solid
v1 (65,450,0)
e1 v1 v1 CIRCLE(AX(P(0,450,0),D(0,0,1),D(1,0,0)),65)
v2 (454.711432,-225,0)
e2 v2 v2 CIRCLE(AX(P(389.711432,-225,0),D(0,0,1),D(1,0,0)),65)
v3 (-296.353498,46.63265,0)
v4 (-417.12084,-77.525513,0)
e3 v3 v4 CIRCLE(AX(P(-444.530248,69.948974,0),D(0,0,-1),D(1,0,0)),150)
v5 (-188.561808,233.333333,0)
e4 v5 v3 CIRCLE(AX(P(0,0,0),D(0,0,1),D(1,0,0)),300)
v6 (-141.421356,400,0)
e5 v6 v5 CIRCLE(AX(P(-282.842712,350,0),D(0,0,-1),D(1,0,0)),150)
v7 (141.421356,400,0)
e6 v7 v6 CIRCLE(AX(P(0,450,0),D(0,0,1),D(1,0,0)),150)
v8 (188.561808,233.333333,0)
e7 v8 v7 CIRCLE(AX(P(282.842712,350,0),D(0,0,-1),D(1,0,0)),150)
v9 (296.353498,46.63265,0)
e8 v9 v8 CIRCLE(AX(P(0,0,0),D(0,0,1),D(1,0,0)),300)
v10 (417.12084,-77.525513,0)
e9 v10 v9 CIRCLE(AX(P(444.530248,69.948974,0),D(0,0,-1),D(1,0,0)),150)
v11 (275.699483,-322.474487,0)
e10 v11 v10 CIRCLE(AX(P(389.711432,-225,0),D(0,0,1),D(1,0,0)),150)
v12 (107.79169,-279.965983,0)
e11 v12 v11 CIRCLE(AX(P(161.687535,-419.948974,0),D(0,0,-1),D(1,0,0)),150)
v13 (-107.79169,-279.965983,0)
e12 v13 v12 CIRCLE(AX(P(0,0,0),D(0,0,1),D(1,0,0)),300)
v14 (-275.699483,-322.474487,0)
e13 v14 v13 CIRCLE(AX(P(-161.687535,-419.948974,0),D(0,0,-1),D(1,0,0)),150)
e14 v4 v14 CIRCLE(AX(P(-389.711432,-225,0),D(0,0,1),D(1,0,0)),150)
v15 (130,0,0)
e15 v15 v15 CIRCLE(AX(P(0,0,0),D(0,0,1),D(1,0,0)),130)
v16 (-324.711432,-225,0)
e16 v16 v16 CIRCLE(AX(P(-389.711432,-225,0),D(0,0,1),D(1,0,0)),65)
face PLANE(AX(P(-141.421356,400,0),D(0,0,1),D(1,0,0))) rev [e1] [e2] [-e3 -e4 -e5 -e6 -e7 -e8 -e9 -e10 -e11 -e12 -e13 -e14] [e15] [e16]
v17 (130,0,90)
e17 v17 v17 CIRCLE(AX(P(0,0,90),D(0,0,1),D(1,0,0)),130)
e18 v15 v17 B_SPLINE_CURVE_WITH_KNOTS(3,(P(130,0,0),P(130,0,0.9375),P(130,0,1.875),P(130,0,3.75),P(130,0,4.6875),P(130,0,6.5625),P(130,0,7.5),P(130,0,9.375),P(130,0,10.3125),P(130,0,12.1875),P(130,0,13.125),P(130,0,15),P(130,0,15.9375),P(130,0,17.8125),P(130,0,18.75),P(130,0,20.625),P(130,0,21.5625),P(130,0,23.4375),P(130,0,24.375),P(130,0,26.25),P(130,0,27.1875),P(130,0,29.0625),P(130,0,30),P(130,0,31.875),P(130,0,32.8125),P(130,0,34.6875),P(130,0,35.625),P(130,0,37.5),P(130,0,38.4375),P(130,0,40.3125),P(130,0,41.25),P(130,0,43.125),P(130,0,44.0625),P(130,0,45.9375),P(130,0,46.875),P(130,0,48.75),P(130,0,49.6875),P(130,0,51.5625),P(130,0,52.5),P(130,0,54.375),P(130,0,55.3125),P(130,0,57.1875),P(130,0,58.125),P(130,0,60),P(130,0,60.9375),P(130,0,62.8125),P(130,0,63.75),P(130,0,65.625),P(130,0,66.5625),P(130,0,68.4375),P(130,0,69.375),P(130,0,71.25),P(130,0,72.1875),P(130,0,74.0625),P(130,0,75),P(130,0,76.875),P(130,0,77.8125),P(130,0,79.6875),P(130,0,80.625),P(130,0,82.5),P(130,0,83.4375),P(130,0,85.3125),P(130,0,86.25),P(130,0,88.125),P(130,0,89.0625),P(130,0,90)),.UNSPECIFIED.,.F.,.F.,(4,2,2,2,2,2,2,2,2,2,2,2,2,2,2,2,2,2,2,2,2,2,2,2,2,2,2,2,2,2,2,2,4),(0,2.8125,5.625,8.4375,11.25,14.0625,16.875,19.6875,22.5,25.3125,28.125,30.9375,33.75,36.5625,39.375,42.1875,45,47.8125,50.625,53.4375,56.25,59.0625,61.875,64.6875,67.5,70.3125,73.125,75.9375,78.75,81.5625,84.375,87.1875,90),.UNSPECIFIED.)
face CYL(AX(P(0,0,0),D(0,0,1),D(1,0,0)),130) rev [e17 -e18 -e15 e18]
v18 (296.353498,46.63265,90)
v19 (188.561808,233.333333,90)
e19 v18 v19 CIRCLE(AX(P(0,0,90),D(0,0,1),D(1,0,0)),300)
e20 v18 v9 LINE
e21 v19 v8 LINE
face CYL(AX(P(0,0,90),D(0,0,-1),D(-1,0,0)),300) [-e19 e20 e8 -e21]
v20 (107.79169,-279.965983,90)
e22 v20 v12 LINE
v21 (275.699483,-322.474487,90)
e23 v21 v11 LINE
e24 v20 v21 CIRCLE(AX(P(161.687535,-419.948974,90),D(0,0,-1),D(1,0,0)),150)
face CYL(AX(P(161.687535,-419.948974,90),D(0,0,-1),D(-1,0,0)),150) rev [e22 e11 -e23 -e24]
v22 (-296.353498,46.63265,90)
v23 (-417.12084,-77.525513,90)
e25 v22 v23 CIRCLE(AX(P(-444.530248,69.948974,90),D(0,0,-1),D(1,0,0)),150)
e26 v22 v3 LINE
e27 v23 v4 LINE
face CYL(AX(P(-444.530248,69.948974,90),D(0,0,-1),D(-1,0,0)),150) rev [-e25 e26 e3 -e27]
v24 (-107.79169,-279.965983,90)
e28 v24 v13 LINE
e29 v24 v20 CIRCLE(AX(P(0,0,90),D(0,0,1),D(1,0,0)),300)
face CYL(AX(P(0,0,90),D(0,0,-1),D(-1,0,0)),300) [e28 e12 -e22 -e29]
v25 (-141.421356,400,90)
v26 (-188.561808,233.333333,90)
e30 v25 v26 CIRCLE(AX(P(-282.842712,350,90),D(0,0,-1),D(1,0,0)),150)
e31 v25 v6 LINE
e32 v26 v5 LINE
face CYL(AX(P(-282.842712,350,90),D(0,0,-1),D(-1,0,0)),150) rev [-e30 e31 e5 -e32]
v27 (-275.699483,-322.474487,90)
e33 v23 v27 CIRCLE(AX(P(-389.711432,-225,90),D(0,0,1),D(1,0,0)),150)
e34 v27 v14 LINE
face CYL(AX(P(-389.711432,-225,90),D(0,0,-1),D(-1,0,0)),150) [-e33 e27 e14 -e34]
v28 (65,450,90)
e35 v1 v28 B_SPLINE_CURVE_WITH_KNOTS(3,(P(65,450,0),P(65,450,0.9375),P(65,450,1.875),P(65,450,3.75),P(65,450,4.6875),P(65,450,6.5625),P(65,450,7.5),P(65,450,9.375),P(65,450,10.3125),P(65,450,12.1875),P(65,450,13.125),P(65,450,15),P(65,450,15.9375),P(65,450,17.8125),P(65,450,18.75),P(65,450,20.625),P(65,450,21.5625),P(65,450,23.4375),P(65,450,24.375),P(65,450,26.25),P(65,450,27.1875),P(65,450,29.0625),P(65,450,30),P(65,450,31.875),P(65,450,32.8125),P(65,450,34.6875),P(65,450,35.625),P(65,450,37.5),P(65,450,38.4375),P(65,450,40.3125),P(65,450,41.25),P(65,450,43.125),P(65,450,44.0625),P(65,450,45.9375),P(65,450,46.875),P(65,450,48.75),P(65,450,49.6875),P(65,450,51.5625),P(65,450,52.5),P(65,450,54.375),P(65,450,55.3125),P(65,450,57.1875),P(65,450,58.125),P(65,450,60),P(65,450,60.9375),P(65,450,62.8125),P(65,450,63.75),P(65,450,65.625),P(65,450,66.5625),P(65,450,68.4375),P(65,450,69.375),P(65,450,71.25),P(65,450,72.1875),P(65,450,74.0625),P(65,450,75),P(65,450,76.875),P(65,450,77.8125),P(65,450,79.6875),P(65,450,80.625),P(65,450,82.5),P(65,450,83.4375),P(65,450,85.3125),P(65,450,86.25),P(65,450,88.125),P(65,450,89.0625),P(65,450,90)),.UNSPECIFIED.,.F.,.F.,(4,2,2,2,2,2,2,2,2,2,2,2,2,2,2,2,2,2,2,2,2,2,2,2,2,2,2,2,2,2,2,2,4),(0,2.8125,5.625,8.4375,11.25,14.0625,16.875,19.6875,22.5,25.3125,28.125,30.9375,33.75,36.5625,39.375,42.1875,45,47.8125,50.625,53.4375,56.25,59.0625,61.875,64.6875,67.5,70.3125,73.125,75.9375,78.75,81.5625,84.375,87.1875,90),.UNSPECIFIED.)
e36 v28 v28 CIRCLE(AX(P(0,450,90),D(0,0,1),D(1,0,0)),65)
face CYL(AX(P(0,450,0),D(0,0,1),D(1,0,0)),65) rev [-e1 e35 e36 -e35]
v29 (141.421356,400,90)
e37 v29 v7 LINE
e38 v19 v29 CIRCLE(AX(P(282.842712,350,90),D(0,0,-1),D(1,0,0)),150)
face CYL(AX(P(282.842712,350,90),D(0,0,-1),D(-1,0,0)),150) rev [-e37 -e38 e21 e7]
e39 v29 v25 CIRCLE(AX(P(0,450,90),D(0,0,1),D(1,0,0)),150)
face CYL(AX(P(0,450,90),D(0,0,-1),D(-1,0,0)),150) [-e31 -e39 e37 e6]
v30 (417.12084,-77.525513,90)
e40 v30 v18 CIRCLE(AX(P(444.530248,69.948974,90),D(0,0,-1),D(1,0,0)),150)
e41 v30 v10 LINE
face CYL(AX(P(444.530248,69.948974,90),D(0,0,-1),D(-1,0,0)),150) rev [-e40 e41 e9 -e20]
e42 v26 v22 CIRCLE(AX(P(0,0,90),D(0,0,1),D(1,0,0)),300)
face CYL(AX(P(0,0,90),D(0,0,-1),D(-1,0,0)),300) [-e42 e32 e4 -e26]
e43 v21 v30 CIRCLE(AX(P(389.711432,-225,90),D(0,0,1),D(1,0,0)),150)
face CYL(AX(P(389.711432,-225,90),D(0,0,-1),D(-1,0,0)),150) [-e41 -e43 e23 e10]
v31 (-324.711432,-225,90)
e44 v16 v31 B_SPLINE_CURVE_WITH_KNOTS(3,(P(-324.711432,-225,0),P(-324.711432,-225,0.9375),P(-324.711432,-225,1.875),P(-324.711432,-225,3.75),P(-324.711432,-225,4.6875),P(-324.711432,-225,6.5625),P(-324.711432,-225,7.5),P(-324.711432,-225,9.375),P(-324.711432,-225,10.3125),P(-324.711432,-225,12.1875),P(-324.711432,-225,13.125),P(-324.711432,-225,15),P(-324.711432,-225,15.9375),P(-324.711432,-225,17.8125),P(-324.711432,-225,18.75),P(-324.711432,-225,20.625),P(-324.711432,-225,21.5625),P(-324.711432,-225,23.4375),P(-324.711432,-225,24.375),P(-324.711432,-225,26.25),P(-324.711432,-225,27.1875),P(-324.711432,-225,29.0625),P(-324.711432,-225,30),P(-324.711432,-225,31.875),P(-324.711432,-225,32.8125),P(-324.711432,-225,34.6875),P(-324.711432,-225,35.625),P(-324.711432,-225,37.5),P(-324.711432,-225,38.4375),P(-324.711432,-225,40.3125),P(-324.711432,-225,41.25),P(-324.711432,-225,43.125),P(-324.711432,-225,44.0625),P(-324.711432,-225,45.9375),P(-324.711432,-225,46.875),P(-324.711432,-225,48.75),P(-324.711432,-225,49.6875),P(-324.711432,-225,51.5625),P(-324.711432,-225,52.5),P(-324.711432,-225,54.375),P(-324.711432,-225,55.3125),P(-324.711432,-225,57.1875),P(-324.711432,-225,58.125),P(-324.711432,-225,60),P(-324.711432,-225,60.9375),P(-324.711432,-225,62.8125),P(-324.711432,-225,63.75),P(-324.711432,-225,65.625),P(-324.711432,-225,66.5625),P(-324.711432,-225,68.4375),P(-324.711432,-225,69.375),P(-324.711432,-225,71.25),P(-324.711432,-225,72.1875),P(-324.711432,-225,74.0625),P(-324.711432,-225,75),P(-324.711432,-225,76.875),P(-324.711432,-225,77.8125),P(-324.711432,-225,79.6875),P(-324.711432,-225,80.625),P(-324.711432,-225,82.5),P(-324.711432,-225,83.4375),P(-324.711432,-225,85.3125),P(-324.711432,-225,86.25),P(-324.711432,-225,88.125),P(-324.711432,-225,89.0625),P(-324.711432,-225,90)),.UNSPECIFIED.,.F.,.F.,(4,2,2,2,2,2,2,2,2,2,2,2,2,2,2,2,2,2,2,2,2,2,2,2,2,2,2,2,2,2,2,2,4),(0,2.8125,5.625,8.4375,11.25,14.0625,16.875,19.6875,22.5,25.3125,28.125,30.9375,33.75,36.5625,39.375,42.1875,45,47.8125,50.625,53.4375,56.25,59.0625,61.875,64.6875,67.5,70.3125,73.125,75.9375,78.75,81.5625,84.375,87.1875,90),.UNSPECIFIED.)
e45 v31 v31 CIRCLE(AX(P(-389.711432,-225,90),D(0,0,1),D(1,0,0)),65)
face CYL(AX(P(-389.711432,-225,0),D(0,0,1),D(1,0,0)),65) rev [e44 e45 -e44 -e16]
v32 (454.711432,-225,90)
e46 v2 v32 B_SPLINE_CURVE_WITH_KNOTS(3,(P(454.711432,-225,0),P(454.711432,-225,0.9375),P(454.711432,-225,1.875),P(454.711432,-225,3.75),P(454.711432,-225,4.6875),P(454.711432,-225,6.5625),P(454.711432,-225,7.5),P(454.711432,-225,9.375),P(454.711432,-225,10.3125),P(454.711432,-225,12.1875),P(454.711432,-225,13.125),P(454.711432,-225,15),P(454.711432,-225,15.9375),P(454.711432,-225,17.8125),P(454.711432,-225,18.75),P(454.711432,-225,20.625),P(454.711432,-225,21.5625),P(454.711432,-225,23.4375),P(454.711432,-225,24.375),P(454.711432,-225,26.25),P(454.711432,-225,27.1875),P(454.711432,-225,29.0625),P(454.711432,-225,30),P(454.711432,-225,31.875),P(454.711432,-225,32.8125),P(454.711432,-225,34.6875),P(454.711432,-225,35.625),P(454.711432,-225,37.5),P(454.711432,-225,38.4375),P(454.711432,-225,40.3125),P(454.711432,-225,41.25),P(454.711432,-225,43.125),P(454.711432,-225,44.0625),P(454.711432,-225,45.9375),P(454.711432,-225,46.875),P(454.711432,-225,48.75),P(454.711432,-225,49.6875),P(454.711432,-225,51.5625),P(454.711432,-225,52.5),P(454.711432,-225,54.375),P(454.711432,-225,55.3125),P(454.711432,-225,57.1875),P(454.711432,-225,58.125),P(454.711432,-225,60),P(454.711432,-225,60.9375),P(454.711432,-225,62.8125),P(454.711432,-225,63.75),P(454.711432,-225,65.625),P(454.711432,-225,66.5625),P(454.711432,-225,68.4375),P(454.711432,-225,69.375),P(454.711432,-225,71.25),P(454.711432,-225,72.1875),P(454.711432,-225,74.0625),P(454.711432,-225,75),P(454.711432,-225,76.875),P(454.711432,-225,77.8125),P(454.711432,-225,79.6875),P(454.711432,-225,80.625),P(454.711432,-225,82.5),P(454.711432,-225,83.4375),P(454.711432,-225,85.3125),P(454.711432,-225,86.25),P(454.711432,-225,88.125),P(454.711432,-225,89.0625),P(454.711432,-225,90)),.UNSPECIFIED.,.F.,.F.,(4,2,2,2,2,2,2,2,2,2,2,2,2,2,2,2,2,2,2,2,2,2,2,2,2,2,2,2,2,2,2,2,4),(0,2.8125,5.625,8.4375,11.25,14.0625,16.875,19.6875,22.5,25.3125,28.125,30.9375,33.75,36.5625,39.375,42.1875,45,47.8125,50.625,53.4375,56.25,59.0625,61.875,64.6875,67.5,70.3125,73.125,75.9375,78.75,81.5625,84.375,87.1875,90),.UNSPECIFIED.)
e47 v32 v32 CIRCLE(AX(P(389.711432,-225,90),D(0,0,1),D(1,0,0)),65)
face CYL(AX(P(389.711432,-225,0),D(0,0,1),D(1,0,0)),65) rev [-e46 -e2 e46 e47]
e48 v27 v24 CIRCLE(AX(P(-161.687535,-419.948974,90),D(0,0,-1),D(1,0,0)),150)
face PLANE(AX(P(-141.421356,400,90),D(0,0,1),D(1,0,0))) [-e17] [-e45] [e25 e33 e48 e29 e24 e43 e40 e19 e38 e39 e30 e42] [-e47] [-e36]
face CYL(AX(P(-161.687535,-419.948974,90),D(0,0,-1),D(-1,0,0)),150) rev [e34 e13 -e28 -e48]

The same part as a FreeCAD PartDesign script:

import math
import FreeCAD as App
import Part
import Sketcher
Q = App.Units.Quantity

doc = App.newDocument("Part")
body = doc.addObject("PartDesign::Body", "Body")

# Sketch on XY plane
sketch1 = doc.addObject("Sketcher::SketchObject", "Sketch")
body.addObject(sketch1)
sketch1.AttachmentSupport = (doc.XY_Plane, [""])
sketch1.MapMode = "FlatFace"
sketch1.addGeometry([
    Part.ArcOfCircle(Part.Circle(App.Vector(0, 0, 0), App.Vector(0, 0, 1), 300), math.radians(129), math.radians(171)),  # 0
    Part.ArcOfCircle(Part.Circle(App.Vector(-445, 70, 0), App.Vector(0, 0, 1), 150), math.radians(-79), math.radians(-9)),  # 1
    Part.ArcOfCircle(Part.Circle(App.Vector(-390, -225, 0), App.Vector(0, 0, 1), 150), math.radians(101), math.radians(319)),  # 2
    Part.ArcOfCircle(Part.Circle(App.Vector(-162, -420, 0), App.Vector(0, 0, 1), 150), math.radians(69), math.radians(139)),  # 3
    Part.ArcOfCircle(Part.Circle(App.Vector(0, 0, 0), App.Vector(0, 0, 1), 300), math.radians(-111), math.radians(-69)),  # 4
    Part.ArcOfCircle(Part.Circle(App.Vector(162, -420, 0), App.Vector(0, 0, 1), 150), math.radians(41), math.radians(111)),  # 5
    Part.ArcOfCircle(Part.Circle(App.Vector(390, -225, 0), App.Vector(0, 0, 1), 150), math.radians(-139), math.radians(79)),  # 6
    Part.ArcOfCircle(Part.Circle(App.Vector(445, 70, 0), App.Vector(0, 0, 1), 150), math.radians(-171), math.radians(-101)),  # 7
    Part.ArcOfCircle(Part.Circle(App.Vector(0, 0, 0), App.Vector(0, 0, 1), 300), math.radians(9), math.radians(51)),  # 8
    Part.ArcOfCircle(Part.Circle(App.Vector(283, 350, 0), App.Vector(0, 0, 1), 150), math.radians(161), math.radians(231)),  # 9
    Part.ArcOfCircle(Part.Circle(App.Vector(0, 450, 0), App.Vector(0, 0, 1), 150), math.radians(-19), math.radians(199)),  # 10
    Part.ArcOfCircle(Part.Circle(App.Vector(-283, 350, 0), App.Vector(0, 0, 1), 150), math.radians(-51), math.radians(19)),  # 11
], False)
sketch1.addConstraint([
    Sketcher.Constraint("Tangent", 0, 2, 1, 2),
    Sketcher.Constraint("Tangent", 1, 1, 2, 1),
    Sketcher.Constraint("Tangent", 2, 2, 3, 2),
    Sketcher.Constraint("Tangent", 3, 1, 4, 1),
    Sketcher.Constraint("Tangent", 4, 2, 5, 2),
    Sketcher.Constraint("Tangent", 5, 1, 6, 1),
    Sketcher.Constraint("Tangent", 6, 2, 7, 2),
    Sketcher.Constraint("Tangent", 7, 1, 8, 1),
    Sketcher.Constraint("Tangent", 8, 2, 9, 2),
    Sketcher.Constraint("Tangent", 9, 1, 10, 1),
    Sketcher.Constraint("Tangent", 10, 2, 11, 2),
    Sketcher.Constraint("Tangent", 11, 1, 0, 1),
    Sketcher.Constraint("Coincident", 0, 3, -1, 1),
    Sketcher.Constraint("Coincident", 4, 3, -1, 1),
    Sketcher.Constraint("Coincident", 8, 3, -1, 1),
    Sketcher.Constraint("Equal", 1, 2),
    Sketcher.Constraint("Equal", 2, 3),
    Sketcher.Constraint("Equal", 0, 4),
    Sketcher.Constraint("Equal", 3, 5),
    Sketcher.Constraint("Equal", 5, 6),
    Sketcher.Constraint("Equal", 6, 7),
    Sketcher.Constraint("Equal", 4, 8),
    Sketcher.Constraint("Equal", 7, 9),
    Sketcher.Constraint("Equal", 9, 10),
    Sketcher.Constraint("Equal", 10, 11),
    Sketcher.Constraint("Symmetric", 2, 3, 6, 3, -2),
    Sketcher.Constraint("PointOnObject", 10, 3, -2),
    Sketcher.Constraint("Radius", 0, Q("300 mm")),
    Sketcher.Constraint("Radius", 1, Q("150 mm")),
    Sketcher.Constraint("DistanceY", 2, 3, -1, 1, Q("225 mm")),
    Sketcher.Constraint("DistanceY", -1, 1, 9, 3, Q("350 mm")),
    Sketcher.Constraint("DistanceX", 2, 3, -1, 1, Q("389.711432 mm")),
])
pad1 = doc.addObject("PartDesign::Pad", "Pad")
body.addObject(pad1)
pad1.Profile = sketch1
pad1.Length = 90

# Sketch on XY plane
sketch2 = doc.addObject("Sketcher::SketchObject", "Sketch001")
body.addObject(sketch2)
sketch2.AttachmentSupport = (doc.XY_Plane, [""])
sketch2.MapMode = "FlatFace"
sketch2.AttachmentOffset = App.Placement(App.Vector(0, 0, 90), App.Rotation())
sketch2.addGeometry([
    Part.Circle(App.Vector(0, 450, 0), App.Vector(0, 0, 1), 65),
    Part.Circle(App.Vector(-390, -225, 0), App.Vector(0, 0, 1), 65),
    Part.Circle(App.Vector(390, -225, 0), App.Vector(0, 0, 1), 65),
], False)
sketch2.addConstraint([
    Sketcher.Constraint("Equal", 0, 1),
    Sketcher.Constraint("Equal", 1, 2),
    Sketcher.Constraint("Symmetric", 1, 3, 2, 3, -2),
    Sketcher.Constraint("PointOnObject", 0, 3, -2),
    Sketcher.Constraint("Diameter", 0, Q("130 mm")),
    Sketcher.Constraint("DistanceY", -1, 1, 0, 3, Q("450 mm")),
    Sketcher.Constraint("DistanceY", 1, 3, -1, 1, Q("225 mm")),
    Sketcher.Constraint("DistanceX", 1, 3, -1, 1, Q("389.711432 mm")),
])
pocket1 = doc.addObject("PartDesign::Pocket", "Pocket")
body.addObject(pocket1)
pocket1.Profile = sketch2
pocket1.Type = "ThroughAll"

# Sketch on XY plane
sketch3 = doc.addObject("Sketcher::SketchObject", "Sketch002")
body.addObject(sketch3)
sketch3.AttachmentSupport = (doc.XY_Plane, [""])
sketch3.MapMode = "FlatFace"
sketch3.AttachmentOffset = App.Placement(App.Vector(0, 0, 90), App.Rotation())
sketch3.addGeometry(Part.Circle(App.Vector(0, 0, 0), App.Vector(0, 0, 1), 130), False)
sketch3.addConstraint([
    Sketcher.Constraint("Coincident", 0, 3, -1, 1),
    Sketcher.Constraint("Diameter", 0, Q("260 mm")),
])
pocket2 = doc.addObject("PartDesign::Pocket", "Pocket001")
body.addObject(pocket2)
pocket2.Profile = sketch3
pocket2.Type = "ThroughAll"

doc.recompute()
